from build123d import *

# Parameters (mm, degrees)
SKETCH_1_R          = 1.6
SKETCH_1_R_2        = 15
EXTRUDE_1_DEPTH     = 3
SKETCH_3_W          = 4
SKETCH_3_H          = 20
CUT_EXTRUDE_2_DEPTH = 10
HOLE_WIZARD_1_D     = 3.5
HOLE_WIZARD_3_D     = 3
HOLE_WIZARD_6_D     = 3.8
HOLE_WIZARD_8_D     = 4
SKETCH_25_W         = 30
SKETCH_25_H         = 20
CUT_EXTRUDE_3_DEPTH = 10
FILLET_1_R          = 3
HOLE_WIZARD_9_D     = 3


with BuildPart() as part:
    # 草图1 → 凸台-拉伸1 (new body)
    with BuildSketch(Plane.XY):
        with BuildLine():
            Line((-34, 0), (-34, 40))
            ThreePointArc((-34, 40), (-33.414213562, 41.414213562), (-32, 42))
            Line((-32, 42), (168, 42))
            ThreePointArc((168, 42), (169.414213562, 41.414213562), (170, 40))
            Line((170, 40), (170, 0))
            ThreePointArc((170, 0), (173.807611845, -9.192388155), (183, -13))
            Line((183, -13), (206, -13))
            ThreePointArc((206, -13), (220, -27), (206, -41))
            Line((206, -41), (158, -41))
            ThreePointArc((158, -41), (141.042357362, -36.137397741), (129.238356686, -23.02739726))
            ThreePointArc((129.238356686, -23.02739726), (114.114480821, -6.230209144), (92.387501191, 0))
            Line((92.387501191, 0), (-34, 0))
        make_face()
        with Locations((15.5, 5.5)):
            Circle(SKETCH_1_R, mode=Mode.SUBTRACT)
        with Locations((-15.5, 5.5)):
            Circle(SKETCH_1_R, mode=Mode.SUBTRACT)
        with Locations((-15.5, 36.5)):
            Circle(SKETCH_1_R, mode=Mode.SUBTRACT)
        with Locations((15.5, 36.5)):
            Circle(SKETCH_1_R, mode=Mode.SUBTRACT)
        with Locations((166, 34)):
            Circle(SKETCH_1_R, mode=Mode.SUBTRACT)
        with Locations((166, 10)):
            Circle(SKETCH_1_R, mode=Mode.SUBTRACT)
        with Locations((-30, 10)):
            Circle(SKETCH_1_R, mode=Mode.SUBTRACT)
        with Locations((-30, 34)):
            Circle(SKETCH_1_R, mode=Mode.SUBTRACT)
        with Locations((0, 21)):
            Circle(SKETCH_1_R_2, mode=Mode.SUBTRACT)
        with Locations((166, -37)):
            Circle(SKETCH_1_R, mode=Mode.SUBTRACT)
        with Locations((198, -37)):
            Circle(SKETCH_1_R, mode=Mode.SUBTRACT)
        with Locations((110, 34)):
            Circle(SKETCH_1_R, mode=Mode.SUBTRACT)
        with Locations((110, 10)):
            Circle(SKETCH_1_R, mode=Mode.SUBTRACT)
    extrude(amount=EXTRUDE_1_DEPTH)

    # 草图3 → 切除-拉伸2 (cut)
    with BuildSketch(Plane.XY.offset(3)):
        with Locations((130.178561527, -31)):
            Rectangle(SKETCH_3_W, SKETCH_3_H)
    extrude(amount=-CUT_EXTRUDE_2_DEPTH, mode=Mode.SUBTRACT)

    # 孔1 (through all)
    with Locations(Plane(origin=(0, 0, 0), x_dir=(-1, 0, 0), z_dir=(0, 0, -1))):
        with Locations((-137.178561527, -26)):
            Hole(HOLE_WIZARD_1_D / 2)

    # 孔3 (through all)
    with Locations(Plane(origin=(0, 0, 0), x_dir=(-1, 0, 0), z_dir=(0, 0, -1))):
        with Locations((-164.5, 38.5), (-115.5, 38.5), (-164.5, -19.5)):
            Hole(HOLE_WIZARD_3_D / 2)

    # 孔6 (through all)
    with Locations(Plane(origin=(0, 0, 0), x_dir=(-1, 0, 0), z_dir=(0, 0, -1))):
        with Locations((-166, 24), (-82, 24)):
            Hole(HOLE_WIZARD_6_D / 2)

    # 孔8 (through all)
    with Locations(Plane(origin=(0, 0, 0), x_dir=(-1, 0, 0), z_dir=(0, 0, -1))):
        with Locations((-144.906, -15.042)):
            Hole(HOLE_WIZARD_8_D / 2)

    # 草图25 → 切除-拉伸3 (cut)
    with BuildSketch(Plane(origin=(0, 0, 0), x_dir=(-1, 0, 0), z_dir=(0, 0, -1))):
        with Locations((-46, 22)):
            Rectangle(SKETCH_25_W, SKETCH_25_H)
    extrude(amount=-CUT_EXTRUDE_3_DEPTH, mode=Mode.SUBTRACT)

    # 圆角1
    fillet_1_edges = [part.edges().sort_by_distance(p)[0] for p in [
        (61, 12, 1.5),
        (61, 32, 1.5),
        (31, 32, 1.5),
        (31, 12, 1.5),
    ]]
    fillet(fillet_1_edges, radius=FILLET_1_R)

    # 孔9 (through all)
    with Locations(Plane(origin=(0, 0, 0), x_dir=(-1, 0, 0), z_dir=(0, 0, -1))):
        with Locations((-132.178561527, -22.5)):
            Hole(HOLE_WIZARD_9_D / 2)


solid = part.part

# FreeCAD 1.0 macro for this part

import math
import FreeCAD as App
import Part
import Sketcher

V = App.Vector
Q = App.Units.Quantity


def edges_at(feature, points):
    """Names of the edges that pass closest to the given points."""
    edges = feature.Shape.Edges
    near = lambda p: min(range(len(edges)), key=lambda i: edges[i].distToShape(Part.Vertex(*p))[0])
    return sorted({f"Edge{near(p) + 1}" for p in points})

doc = App.newDocument("Part")
params = doc.addObject("Spreadsheet::Sheet", "Params")
for row, (alias, value) in enumerate([
    ("sketch1_diameter", "30 mm"),
    ("sketch1_radius", "41 mm"),
    ("sketch1_radius2", "32 mm"),
    ("sketch1_radius3", "14 mm"),
    ("sketch1_radius4", "2 mm"),
    ("pad1_length", "3 mm"),
    ("sketch2_width", "4 mm"),
    ("sketch2_height", "20 mm"),
    ("pocket1_length", "10 mm"),
    ("sketch3_diameter", "3.5 mm"),
    ("hole_diameter", "3.5 mm"),
    ("sketch4_diameter", "3 mm"),
    ("hole2_diameter", "3 mm"),
    ("sketch5_diameter", "3.8 mm"),
    ("hole3_diameter", "3.8 mm"),
    ("sketch6_diameter", "4 mm"),
    ("hole4_diameter", "4 mm"),
    ("sketch7_width", "30 mm"),
    ("sketch7_height", "20 mm"),
    ("pocket2_length", "10 mm"),
    ("fillet_radius", "3 mm"),
    ("sketch8_diameter", "3 mm"),
    ("hole5_diameter", "3 mm"),
], start=1):
    params.set(f"A{row}", alias)
    params.set(f"B{row}", "=" + value)
    params.setAlias(f"B{row}", alias)

body = doc.addObject("PartDesign::Body", "Body")

# Sketch on XY plane
sketch1 = body.newObject("Sketcher::SketchObject", "Sketch")
sketch1.AttachmentSupport = (doc.getObject("XY_Plane"), [""])
sketch1.MapMode = "FlatFace"
sketch1.addGeometry(Part.LineSegment(V(-34, 40, 0), V(-34, 0, 0)), False)
sketch1.addGeometry(Part.LineSegment(V(-34, 0, 0), V(92.387501, 0, 0)), False)
sketch1.addGeometry(Part.ArcOfCircle(Part.Circle(V(92.387501, -41, 0), V(0, 0, 1), 41), math.radians(25.999045), math.radians(90)), False)
sketch1.addGeometry(Part.ArcOfCircle(Part.Circle(V(158, -9, 0), V(0, 0, 1), 32), math.radians(-154.000955), math.radians(-90)), False)
sketch1.addGeometry(Part.LineSegment(V(158, -41, 0), V(206, -41, 0)), False)
sketch1.addGeometry(Part.ArcOfCircle(Part.Circle(V(206, -27, 0), V(0, 0, 1), 14), math.radians(-90), math.radians(90)), False)
sketch1.addGeometry(Part.LineSegment(V(206, -13, 0), V(183, -13, 0)), False)
sketch1.addGeometry(Part.ArcOfCircle(Part.Circle(V(183, 0, 0), V(0, 0, 1), 13), math.radians(-180), math.radians(-90)), False)
sketch1.addGeometry(Part.LineSegment(V(170, 0, 0), V(170, 40, 0)), False)
sketch1.addGeometry(Part.ArcOfCircle(Part.Circle(V(168, 40, 0), V(0, 0, 1), 2), math.radians(0), math.radians(90)), False)
sketch1.addGeometry(Part.LineSegment(V(168, 42, 0), V(-32, 42, 0)), False)
sketch1.addGeometry(Part.ArcOfCircle(Part.Circle(V(-32, 40, 0), V(0, 0, 1), 2), math.radians(90), math.radians(180)), False)
sketch1.addGeometry(Part.Circle(V(198, -37, 0), V(0, 0, 1), 1.6), False)
sketch1.addGeometry(Part.Circle(V(166, -37, 0), V(0, 0, 1), 1.6), False)
sketch1.addGeometry(Part.Circle(V(166, 10, 0), V(0, 0, 1), 1.6), False)
sketch1.addGeometry(Part.Circle(V(110, 10, 0), V(0, 0, 1), 1.6), False)
sketch1.addGeometry(Part.Circle(V(166, 34, 0), V(0, 0, 1), 1.6), False)
sketch1.addGeometry(Part.Circle(V(110, 34, 0), V(0, 0, 1), 1.6), False)
sketch1.addGeometry(Part.Circle(V(15.5, 5.5, 0), V(0, 0, 1), 1.6), False)
sketch1.addGeometry(Part.Circle(V(-15.5, 5.5, 0), V(0, 0, 1), 1.6), False)
sketch1.addGeometry(Part.Circle(V(-30, 10, 0), V(0, 0, 1), 1.6), False)
sketch1.addGeometry(Part.Circle(V(0, 21, 0), V(0, 0, 1), 15), False)
sketch1.addGeometry(Part.Circle(V(15.5, 36.5, 0), V(0, 0, 1), 1.6), False)
sketch1.addGeometry(Part.Circle(V(-15.5, 36.5, 0), V(0, 0, 1), 1.6), False)
sketch1.addGeometry(Part.Circle(V(-30, 34, 0), V(0, 0, 1), 1.6), False)
sketch1.addConstraint(Sketcher.Constraint("Coincident", 0, 2, 1, 1))
sketch1.addConstraint(Sketcher.Constraint("Tangent", 1, 2, 2, 2))
sketch1.addConstraint(Sketcher.Constraint("Tangent", 2, 1, 3, 1))
sketch1.addConstraint(Sketcher.Constraint("Tangent", 3, 2, 4, 1))
sketch1.addConstraint(Sketcher.Constraint("Tangent", 4, 2, 5, 1))
sketch1.addConstraint(Sketcher.Constraint("Tangent", 5, 2, 6, 1))
sketch1.addConstraint(Sketcher.Constraint("Tangent", 6, 2, 7, 2))
sketch1.addConstraint(Sketcher.Constraint("Tangent", 7, 1, 8, 1))
sketch1.addConstraint(Sketcher.Constraint("Tangent", 8, 2, 9, 1))
sketch1.addConstraint(Sketcher.Constraint("Tangent", 9, 2, 10, 1))
sketch1.addConstraint(Sketcher.Constraint("Tangent", 10, 2, 11, 1))
sketch1.addConstraint(Sketcher.Constraint("Tangent", 11, 2, 0, 1))
sketch1.addConstraint(Sketcher.Constraint("Vertical", 0))
sketch1.addConstraint(Sketcher.Constraint("Horizontal", 1))
sketch1.addConstraint(Sketcher.Constraint("Horizontal", 4))
sketch1.addConstraint(Sketcher.Constraint("Horizontal", 6))
sketch1.addConstraint(Sketcher.Constraint("Vertical", 8))
sketch1.addConstraint(Sketcher.Constraint("Horizontal", 10))
sketch1.addConstraint(Sketcher.Constraint("Equal", 9, 11))
sketch1.addConstraint(Sketcher.Constraint("Equal", 12, 13))
sketch1.addConstraint(Sketcher.Constraint("Equal", 13, 14))
sketch1.addConstraint(Sketcher.Constraint("Equal", 14, 15))
sketch1.addConstraint(Sketcher.Constraint("Equal", 15, 16))
sketch1.addConstraint(Sketcher.Constraint("Equal", 16, 17))
sketch1.addConstraint(Sketcher.Constraint("Equal", 17, 18))
sketch1.addConstraint(Sketcher.Constraint("Equal", 18, 19))
sketch1.addConstraint(Sketcher.Constraint("Equal", 19, 20))
sketch1.addConstraint(Sketcher.Constraint("Equal", 20, 22))
sketch1.addConstraint(Sketcher.Constraint("Equal", 22, 23))
sketch1.addConstraint(Sketcher.Constraint("Equal", 23, 24))
sketch1.addConstraint(Sketcher.Constraint("Symmetric", 18, 3, 19, 3, -2))
sketch1.addConstraint(Sketcher.Constraint("Symmetric", 22, 3, 23, 3, -2))
sketch1.addConstraint(Sketcher.Constraint("PointOnObject", 7, 3, -1))
sketch1.addConstraint(Sketcher.Constraint("PointOnObject", 21, 3, -2))
sketch1.addConstraint(Sketcher.Constraint("PointOnObject", 0, 2, -1))
sketch1.addConstraint(Sketcher.Constraint("Horizontal", 12, 3, 13, 3))
sketch1.addConstraint(Sketcher.Constraint("Horizontal", 14, 3, 15, 3))
sketch1.addConstraint(Sketcher.Constraint("Horizontal", 16, 3, 17, 3))
sketch1.addConstraint(Sketcher.Constraint("Horizontal", 15, 3, 20, 3))
sketch1.addConstraint(Sketcher.Constraint("Horizontal", 17, 3, 24, 3))
sketch1.addConstraint(Sketcher.Constraint("Horizontal", 2, 3, 3, 2))
sketch1.addConstraint(Sketcher.Constraint("Vertical", 13, 3, 14, 3))
sketch1.addConstraint(Sketcher.Constraint("Vertical", 14, 3, 16, 3))
sketch1.addConstraint(Sketcher.Constraint("Vertical", 15, 3, 17, 3))
sketch1.addConstraint(Sketcher.Constraint("Vertical", 18, 3, 22, 3))
sketch1.addConstraint(Sketcher.Constraint("Vertical", 20, 3, 24, 3))
sketch1.addConstraint(Sketcher.Constraint("Diameter", 21, Q("30 mm")))
sketch1.addConstraint(Sketcher.Constraint("Radius", 2, Q("41 mm")))
sketch1.addConstraint(Sketcher.Constraint("Radius", 3, Q("32 mm")))
sketch1.addConstraint(Sketcher.Constraint("Radius", 5, Q("14 mm")))
sketch1.addConstraint(Sketcher.Constraint("Radius", 9, Q("2 mm")))
sketch1.addConstraint(Sketcher.Constraint("Diameter", 12, Q("3.2 mm")))
sketch1.addConstraint(Sketcher.Constraint("DistanceX", 4, 1, 4, 2, Q("48 mm")))
sketch1.addConstraint(Sketcher.Constraint("DistanceX", 6, 2, 6, 1, Q("23 mm")))
sketch1.addConstraint(Sketcher.Constraint("DistanceX", 10, 2, 10, 1, Q("200 mm")))
sketch1.addConstraint(Sketcher.Constraint("DistanceY", 0, 2, 0, 1, Q("40 mm")))
sketch1.addConstraint(Sketcher.Constraint("DistanceX", -1, 1, 3, 3, Q("158 mm")))
sketch1.addConstraint(Sketcher.Constraint("DistanceX", -1, 1, 12, 3, Q("198 mm")))
sketch1.addConstraint(Sketcher.Constraint("DistanceY", 12, 3, -1, 1, Q("37 mm")))
sketch1.addConstraint(Sketcher.Constraint("DistanceX", -1, 1, 13, 3, Q("166 mm")))
sketch1.addConstraint(Sketcher.Constraint("DistanceY", -1, 1, 14, 3, Q("10 mm")))
sketch1.addConstraint(Sketcher.Constraint("DistanceX", -1, 1, 15, 3, Q("110 mm")))
sketch1.addConstraint(Sketcher.Constraint("DistanceY", -1, 1, 16, 3, Q("34 mm")))
sketch1.addConstraint(Sketcher.Constraint("DistanceX", 20, 3, -1, 1, Q("30 mm")))
sketch1.addConstraint(Sketcher.Constraint("DistanceY", -1, 1, 21, 3, Q("21 mm")))
sketch1.addConstraint(Sketcher.Constraint("DistanceX", 19, 3, 18, 3, Q("31 mm")))
sketch1.addConstraint(Sketcher.Constraint("DistanceY", 18, 3, 22, 3, Q("31 mm")))
sketch1.addConstraint(Sketcher.Constraint("DistanceY", -1, 1, 18, 3, Q("5.5 mm")))
sketch1.setExpression("Constraints[46]", "Params.sketch1_diameter")
sketch1.setExpression("Constraints[47]", "Params.sketch1_radius")
sketch1.setExpression("Constraints[48]", "Params.sketch1_radius2")
sketch1.setExpression("Constraints[49]", "Params.sketch1_radius3")
sketch1.setExpression("Constraints[50]", "Params.sketch1_radius4")
pad1 = body.newObject("PartDesign::Pad", "Pad")
pad1.Profile = sketch1
pad1.setExpression("Length", "Params.pad1_length")

# Sketch on XY plane
sketch2 = body.newObject("Sketcher::SketchObject", "Sketch001")
sketch2.AttachmentSupport = (doc.getObject("XY_Plane"), [""])
sketch2.MapMode = "FlatFace"
sketch2.AttachmentOffset = App.Placement(V(0, 0, 3), App.Rotation())
sketch2.addGeometry(Part.LineSegment(V(128.178562, -21, 0), V(128.178562, -41, 0)), False)
sketch2.addGeometry(Part.LineSegment(V(128.178562, -41, 0), V(132.178562, -41, 0)), False)
sketch2.addGeometry(Part.LineSegment(V(132.178562, -41, 0), V(132.178562, -21, 0)), False)
sketch2.addGeometry(Part.LineSegment(V(132.178562, -21, 0), V(128.178562, -21, 0)), False)
sketch2.addConstraint(Sketcher.Constraint("Coincident", 0, 2, 1, 1))
sketch2.addConstraint(Sketcher.Constraint("Coincident", 1, 2, 2, 1))
sketch2.addConstraint(Sketcher.Constraint("Coincident", 2, 2, 3, 1))
sketch2.addConstraint(Sketcher.Constraint("Coincident", 3, 2, 0, 1))
sketch2.addConstraint(Sketcher.Constraint("Vertical", 0))
sketch2.addConstraint(Sketcher.Constraint("Horizontal", 1))
sketch2.addConstraint(Sketcher.Constraint("Vertical", 2))
sketch2.addConstraint(Sketcher.Constraint("Horizontal", 3))
sketch2.addConstraint(Sketcher.Constraint("DistanceX", 1, 1, 1, 2, Q("4 mm")))
sketch2.addConstraint(Sketcher.Constraint("DistanceY", 0, 2, 0, 1, Q("20 mm")))
sketch2.addConstraint(Sketcher.Constraint("DistanceY", 0, 2, -1, 1, Q("41 mm")))
sketch2.addConstraint(Sketcher.Constraint("DistanceX", -1, 1, 0, 2, Q("128.178562 mm")))
sketch2.setExpression("Constraints[8]", "Params.sketch2_width")
sketch2.setExpression("Constraints[9]", "Params.sketch2_height")
pocket1 = body.newObject("PartDesign::Pocket", "Pocket")
pocket1.Profile = sketch2
pocket1.setExpression("Length", "Params.pocket1_length")

# Sketch on XY plane
sketch3 = body.newObject("Sketcher::SketchObject", "Sketch002")
sketch3.AttachmentSupport = (doc.getObject("XY_Plane"), [""])
sketch3.MapMode = "FlatFace"
sketch3.addGeometry(Part.Circle(V(137.178562, -26, 0), V(0, 0, 1), 1.75), False)
sketch3.addConstraint(Sketcher.Constraint("Diameter", 0, Q("3.5 mm")))
sketch3.addConstraint(Sketcher.Constraint("DistanceY", 0, 3, -1, 1, Q("26 mm")))
sketch3.addConstraint(Sketcher.Constraint("DistanceX", -1, 1, 0, 3, Q("137.178562 mm")))
sketch3.setExpression("Constraints[0]", "Params.sketch3_diameter")
doc.recompute()
hole = body.newObject("PartDesign::Hole", "Hole")
hole.Profile = sketch3
hole.ThreadType = "None"
hole.setExpression("Diameter", "Params.hole_diameter")
hole.DepthType = "ThroughAll"
hole.Reversed = True

# Sketch on XY plane
sketch4 = body.newObject("Sketcher::SketchObject", "Sketch003")
sketch4.AttachmentSupport = (doc.getObject("XY_Plane"), [""])
sketch4.MapMode = "FlatFace"
sketch4.addGeometry(Part.Circle(V(164.5, 38.5, 0), V(0, 0, 1), 1.5), False)
sketch4.addGeometry(Part.Circle(V(115.5, 38.5, 0), V(0, 0, 1), 1.5), False)
sketch4.addGeometry(Part.Circle(V(164.5, -19.5, 0), V(0, 0, 1), 1.5), False)
sketch4.addConstraint(Sketcher.Constraint("Equal", 0, 1))
sketch4.addConstraint(Sketcher.Constraint("Equal", 1, 2))
sketch4.addConstraint(Sketcher.Constraint("Horizontal", 0, 3, 1, 3))
sketch4.addConstraint(Sketcher.Constraint("Vertical", 0, 3, 2, 3))
sketch4.addConstraint(Sketcher.Constraint("Diameter", 0, Q("3 mm")))
sketch4.addConstraint(Sketcher.Constraint("DistanceX", 1, 3, 0, 3, Q("49 mm")))
sketch4.addConstraint(Sketcher.Constraint("DistanceY", 2, 3, 0, 3, Q("58 mm")))
sketch4.addConstraint(Sketcher.Constraint("DistanceX", -1, 1, 0, 3, Q("164.5 mm")))
sketch4.addConstraint(Sketcher.Constraint("DistanceY", -1, 1, 0, 3, Q("38.5 mm")))
sketch4.setExpression("Constraints[4]", "Params.sketch4_diameter")
doc.recompute()
hole2 = body.newObject("PartDesign::Hole", "Hole001")
hole2.Profile = sketch4
hole2.ThreadType = "None"
hole2.setExpression("Diameter", "Params.hole2_diameter")
hole2.DepthType = "ThroughAll"
hole2.Reversed = True

# Sketch on XY plane
sketch5 = body.newObject("Sketcher::SketchObject", "Sketch004")
sketch5.AttachmentSupport = (doc.getObject("XY_Plane"), [""])
sketch5.MapMode = "FlatFace"
sketch5.addGeometry(Part.Circle(V(166, 24, 0), V(0, 0, 1), 1.9), False)
sketch5.addGeometry(Part.Circle(V(82, 24, 0), V(0, 0, 1), 1.9), False)
sketch5.addConstraint(Sketcher.Constraint("Equal", 0, 1))
sketch5.addConstraint(Sketcher.Constraint("Horizontal", 0, 3, 1, 3))
sketch5.addConstraint(Sketcher.Constraint("Diameter", 0, Q("3.8 mm")))
sketch5.addConstraint(Sketcher.Constraint("DistanceX", -1, 1, 0, 3, Q("166 mm")))
sketch5.addConstraint(Sketcher.Constraint("DistanceY", -1, 1, 0, 3, Q("24 mm")))
sketch5.addConstraint(Sketcher.Constraint("DistanceX", -1, 1, 1, 3, Q("82 mm")))
sketch5.setExpression("Constraints[2]", "Params.sketch5_diameter")
doc.recompute()
hole3 = body.newObject("PartDesign::Hole", "Hole002")
hole3.Profile = sketch5
hole3.ThreadType = "None"
hole3.setExpression("Diameter", "Params.hole3_diameter")
hole3.DepthType = "ThroughAll"
hole3.Reversed = True

# Sketch on XY plane
sketch6 = body.newObject("Sketcher::SketchObject", "Sketch005")
sketch6.AttachmentSupport = (doc.getObject("XY_Plane"), [""])
sketch6.MapMode = "FlatFace"
sketch6.addGeometry(Part.Circle(V(144.906, -15.042, 0), V(0, 0, 1), 2), False)
sketch6.addConstraint(Sketcher.Constraint("Diameter", 0, Q("4 mm")))
sketch6.addConstraint(Sketcher.Constraint("DistanceX", -1, 1, 0, 3, Q("144.906 mm")))
sketch6.addConstraint(Sketcher.Constraint("DistanceY", 0, 3, -1, 1, Q("15.042 mm")))
sketch6.setExpression("Constraints[0]", "Params.sketch6_diameter")
doc.recompute()
hole4 = body.newObject("PartDesign::Hole", "Hole003")
hole4.Profile = sketch6
hole4.ThreadType = "None"
hole4.setExpression("Diameter", "Params.hole4_diameter")
hole4.DepthType = "ThroughAll"
hole4.Reversed = True

# Sketch on XY plane
sketch7 = body.newObject("Sketcher::SketchObject", "Sketch006")
sketch7.AttachmentSupport = (doc.getObject("XY_Plane"), [""])
sketch7.MapMode = "FlatFace"
sketch7.addGeometry(Part.LineSegment(V(61, 32, 0), V(61, 12, 0)), False)
sketch7.addGeometry(Part.LineSegment(V(61, 12, 0), V(31, 12, 0)), False)
sketch7.addGeometry(Part.LineSegment(V(31, 12, 0), V(31, 32, 0)), False)
sketch7.addGeometry(Part.LineSegment(V(31, 32, 0), V(61, 32, 0)), False)
sketch7.addConstraint(Sketcher.Constraint("Coincident", 0, 2, 1, 1))
sketch7.addConstraint(Sketcher.Constraint("Coincident", 1, 2, 2, 1))
sketch7.addConstraint(Sketcher.Constraint("Coincident", 2, 2, 3, 1))
sketch7.addConstraint(Sketcher.Constraint("Coincident", 3, 2, 0, 1))
sketch7.addConstraint(Sketcher.Constraint("Vertical", 0))
sketch7.addConstraint(Sketcher.Constraint("Horizontal", 1))
sketch7.addConstraint(Sketcher.Constraint("Vertical", 2))
sketch7.addConstraint(Sketcher.Constraint("Horizontal", 3))
sketch7.addConstraint(Sketcher.Constraint("DistanceX", 1, 2, 1, 1, Q("30 mm")))
sketch7.addConstraint(Sketcher.Constraint("DistanceY", 0, 2, 0, 1, Q("20 mm")))
sketch7.addConstraint(Sketcher.Constraint("DistanceX", -1, 1, 0, 2, Q("61 mm")))
sketch7.addConstraint(Sketcher.Constraint("DistanceY", -1, 1, 0, 2, Q("12 mm")))
sketch7.setExpression("Constraints[8]", "Params.sketch7_width")
sketch7.setExpression("Constraints[9]", "Params.sketch7_height")
pocket2 = body.newObject("PartDesign::Pocket", "Pocket001")
pocket2.Profile = sketch7
pocket2.setExpression("Length", "Params.pocket2_length")
pocket2.Reversed = True
doc.recompute()

fillet = body.newObject("PartDesign::Fillet", "Fillet")
fillet.Base = (pocket2, edges_at(pocket2, [
    (61, 12, 1.5),
    (61, 32, 1.5),
    (31, 32, 1.5),
    (31, 12, 1.5),
]))
fillet.setExpression("Radius", "Params.fillet_radius")

# Sketch on XY plane
sketch8 = body.newObject("Sketcher::SketchObject", "Sketch007")
sketch8.AttachmentSupport = (doc.getObject("XY_Plane"), [""])
sketch8.MapMode = "FlatFace"
sketch8.addGeometry(Part.Circle(V(132.178562, -22.5, 0), V(0, 0, 1), 1.5), False)
sketch8.addConstraint(Sketcher.Constraint("Diameter", 0, Q("3 mm")))
sketch8.addConstraint(Sketcher.Constraint("DistanceY", 0, 3, -1, 1, Q("22.5 mm")))
sketch8.addConstraint(Sketcher.Constraint("DistanceX", -1, 1, 0, 3, Q("132.178562 mm")))
sketch8.setExpression("Constraints[0]", "Params.sketch8_diameter")
doc.recompute()
hole5 = body.newObject("PartDesign::Hole", "Hole004")
hole5.Profile = sketch8
hole5.ThreadType = "None"
hole5.setExpression("Diameter", "Params.hole5_diameter")
hole5.DepthType = "ThroughAll"
hole5.Reversed = True

doc.recompute()
